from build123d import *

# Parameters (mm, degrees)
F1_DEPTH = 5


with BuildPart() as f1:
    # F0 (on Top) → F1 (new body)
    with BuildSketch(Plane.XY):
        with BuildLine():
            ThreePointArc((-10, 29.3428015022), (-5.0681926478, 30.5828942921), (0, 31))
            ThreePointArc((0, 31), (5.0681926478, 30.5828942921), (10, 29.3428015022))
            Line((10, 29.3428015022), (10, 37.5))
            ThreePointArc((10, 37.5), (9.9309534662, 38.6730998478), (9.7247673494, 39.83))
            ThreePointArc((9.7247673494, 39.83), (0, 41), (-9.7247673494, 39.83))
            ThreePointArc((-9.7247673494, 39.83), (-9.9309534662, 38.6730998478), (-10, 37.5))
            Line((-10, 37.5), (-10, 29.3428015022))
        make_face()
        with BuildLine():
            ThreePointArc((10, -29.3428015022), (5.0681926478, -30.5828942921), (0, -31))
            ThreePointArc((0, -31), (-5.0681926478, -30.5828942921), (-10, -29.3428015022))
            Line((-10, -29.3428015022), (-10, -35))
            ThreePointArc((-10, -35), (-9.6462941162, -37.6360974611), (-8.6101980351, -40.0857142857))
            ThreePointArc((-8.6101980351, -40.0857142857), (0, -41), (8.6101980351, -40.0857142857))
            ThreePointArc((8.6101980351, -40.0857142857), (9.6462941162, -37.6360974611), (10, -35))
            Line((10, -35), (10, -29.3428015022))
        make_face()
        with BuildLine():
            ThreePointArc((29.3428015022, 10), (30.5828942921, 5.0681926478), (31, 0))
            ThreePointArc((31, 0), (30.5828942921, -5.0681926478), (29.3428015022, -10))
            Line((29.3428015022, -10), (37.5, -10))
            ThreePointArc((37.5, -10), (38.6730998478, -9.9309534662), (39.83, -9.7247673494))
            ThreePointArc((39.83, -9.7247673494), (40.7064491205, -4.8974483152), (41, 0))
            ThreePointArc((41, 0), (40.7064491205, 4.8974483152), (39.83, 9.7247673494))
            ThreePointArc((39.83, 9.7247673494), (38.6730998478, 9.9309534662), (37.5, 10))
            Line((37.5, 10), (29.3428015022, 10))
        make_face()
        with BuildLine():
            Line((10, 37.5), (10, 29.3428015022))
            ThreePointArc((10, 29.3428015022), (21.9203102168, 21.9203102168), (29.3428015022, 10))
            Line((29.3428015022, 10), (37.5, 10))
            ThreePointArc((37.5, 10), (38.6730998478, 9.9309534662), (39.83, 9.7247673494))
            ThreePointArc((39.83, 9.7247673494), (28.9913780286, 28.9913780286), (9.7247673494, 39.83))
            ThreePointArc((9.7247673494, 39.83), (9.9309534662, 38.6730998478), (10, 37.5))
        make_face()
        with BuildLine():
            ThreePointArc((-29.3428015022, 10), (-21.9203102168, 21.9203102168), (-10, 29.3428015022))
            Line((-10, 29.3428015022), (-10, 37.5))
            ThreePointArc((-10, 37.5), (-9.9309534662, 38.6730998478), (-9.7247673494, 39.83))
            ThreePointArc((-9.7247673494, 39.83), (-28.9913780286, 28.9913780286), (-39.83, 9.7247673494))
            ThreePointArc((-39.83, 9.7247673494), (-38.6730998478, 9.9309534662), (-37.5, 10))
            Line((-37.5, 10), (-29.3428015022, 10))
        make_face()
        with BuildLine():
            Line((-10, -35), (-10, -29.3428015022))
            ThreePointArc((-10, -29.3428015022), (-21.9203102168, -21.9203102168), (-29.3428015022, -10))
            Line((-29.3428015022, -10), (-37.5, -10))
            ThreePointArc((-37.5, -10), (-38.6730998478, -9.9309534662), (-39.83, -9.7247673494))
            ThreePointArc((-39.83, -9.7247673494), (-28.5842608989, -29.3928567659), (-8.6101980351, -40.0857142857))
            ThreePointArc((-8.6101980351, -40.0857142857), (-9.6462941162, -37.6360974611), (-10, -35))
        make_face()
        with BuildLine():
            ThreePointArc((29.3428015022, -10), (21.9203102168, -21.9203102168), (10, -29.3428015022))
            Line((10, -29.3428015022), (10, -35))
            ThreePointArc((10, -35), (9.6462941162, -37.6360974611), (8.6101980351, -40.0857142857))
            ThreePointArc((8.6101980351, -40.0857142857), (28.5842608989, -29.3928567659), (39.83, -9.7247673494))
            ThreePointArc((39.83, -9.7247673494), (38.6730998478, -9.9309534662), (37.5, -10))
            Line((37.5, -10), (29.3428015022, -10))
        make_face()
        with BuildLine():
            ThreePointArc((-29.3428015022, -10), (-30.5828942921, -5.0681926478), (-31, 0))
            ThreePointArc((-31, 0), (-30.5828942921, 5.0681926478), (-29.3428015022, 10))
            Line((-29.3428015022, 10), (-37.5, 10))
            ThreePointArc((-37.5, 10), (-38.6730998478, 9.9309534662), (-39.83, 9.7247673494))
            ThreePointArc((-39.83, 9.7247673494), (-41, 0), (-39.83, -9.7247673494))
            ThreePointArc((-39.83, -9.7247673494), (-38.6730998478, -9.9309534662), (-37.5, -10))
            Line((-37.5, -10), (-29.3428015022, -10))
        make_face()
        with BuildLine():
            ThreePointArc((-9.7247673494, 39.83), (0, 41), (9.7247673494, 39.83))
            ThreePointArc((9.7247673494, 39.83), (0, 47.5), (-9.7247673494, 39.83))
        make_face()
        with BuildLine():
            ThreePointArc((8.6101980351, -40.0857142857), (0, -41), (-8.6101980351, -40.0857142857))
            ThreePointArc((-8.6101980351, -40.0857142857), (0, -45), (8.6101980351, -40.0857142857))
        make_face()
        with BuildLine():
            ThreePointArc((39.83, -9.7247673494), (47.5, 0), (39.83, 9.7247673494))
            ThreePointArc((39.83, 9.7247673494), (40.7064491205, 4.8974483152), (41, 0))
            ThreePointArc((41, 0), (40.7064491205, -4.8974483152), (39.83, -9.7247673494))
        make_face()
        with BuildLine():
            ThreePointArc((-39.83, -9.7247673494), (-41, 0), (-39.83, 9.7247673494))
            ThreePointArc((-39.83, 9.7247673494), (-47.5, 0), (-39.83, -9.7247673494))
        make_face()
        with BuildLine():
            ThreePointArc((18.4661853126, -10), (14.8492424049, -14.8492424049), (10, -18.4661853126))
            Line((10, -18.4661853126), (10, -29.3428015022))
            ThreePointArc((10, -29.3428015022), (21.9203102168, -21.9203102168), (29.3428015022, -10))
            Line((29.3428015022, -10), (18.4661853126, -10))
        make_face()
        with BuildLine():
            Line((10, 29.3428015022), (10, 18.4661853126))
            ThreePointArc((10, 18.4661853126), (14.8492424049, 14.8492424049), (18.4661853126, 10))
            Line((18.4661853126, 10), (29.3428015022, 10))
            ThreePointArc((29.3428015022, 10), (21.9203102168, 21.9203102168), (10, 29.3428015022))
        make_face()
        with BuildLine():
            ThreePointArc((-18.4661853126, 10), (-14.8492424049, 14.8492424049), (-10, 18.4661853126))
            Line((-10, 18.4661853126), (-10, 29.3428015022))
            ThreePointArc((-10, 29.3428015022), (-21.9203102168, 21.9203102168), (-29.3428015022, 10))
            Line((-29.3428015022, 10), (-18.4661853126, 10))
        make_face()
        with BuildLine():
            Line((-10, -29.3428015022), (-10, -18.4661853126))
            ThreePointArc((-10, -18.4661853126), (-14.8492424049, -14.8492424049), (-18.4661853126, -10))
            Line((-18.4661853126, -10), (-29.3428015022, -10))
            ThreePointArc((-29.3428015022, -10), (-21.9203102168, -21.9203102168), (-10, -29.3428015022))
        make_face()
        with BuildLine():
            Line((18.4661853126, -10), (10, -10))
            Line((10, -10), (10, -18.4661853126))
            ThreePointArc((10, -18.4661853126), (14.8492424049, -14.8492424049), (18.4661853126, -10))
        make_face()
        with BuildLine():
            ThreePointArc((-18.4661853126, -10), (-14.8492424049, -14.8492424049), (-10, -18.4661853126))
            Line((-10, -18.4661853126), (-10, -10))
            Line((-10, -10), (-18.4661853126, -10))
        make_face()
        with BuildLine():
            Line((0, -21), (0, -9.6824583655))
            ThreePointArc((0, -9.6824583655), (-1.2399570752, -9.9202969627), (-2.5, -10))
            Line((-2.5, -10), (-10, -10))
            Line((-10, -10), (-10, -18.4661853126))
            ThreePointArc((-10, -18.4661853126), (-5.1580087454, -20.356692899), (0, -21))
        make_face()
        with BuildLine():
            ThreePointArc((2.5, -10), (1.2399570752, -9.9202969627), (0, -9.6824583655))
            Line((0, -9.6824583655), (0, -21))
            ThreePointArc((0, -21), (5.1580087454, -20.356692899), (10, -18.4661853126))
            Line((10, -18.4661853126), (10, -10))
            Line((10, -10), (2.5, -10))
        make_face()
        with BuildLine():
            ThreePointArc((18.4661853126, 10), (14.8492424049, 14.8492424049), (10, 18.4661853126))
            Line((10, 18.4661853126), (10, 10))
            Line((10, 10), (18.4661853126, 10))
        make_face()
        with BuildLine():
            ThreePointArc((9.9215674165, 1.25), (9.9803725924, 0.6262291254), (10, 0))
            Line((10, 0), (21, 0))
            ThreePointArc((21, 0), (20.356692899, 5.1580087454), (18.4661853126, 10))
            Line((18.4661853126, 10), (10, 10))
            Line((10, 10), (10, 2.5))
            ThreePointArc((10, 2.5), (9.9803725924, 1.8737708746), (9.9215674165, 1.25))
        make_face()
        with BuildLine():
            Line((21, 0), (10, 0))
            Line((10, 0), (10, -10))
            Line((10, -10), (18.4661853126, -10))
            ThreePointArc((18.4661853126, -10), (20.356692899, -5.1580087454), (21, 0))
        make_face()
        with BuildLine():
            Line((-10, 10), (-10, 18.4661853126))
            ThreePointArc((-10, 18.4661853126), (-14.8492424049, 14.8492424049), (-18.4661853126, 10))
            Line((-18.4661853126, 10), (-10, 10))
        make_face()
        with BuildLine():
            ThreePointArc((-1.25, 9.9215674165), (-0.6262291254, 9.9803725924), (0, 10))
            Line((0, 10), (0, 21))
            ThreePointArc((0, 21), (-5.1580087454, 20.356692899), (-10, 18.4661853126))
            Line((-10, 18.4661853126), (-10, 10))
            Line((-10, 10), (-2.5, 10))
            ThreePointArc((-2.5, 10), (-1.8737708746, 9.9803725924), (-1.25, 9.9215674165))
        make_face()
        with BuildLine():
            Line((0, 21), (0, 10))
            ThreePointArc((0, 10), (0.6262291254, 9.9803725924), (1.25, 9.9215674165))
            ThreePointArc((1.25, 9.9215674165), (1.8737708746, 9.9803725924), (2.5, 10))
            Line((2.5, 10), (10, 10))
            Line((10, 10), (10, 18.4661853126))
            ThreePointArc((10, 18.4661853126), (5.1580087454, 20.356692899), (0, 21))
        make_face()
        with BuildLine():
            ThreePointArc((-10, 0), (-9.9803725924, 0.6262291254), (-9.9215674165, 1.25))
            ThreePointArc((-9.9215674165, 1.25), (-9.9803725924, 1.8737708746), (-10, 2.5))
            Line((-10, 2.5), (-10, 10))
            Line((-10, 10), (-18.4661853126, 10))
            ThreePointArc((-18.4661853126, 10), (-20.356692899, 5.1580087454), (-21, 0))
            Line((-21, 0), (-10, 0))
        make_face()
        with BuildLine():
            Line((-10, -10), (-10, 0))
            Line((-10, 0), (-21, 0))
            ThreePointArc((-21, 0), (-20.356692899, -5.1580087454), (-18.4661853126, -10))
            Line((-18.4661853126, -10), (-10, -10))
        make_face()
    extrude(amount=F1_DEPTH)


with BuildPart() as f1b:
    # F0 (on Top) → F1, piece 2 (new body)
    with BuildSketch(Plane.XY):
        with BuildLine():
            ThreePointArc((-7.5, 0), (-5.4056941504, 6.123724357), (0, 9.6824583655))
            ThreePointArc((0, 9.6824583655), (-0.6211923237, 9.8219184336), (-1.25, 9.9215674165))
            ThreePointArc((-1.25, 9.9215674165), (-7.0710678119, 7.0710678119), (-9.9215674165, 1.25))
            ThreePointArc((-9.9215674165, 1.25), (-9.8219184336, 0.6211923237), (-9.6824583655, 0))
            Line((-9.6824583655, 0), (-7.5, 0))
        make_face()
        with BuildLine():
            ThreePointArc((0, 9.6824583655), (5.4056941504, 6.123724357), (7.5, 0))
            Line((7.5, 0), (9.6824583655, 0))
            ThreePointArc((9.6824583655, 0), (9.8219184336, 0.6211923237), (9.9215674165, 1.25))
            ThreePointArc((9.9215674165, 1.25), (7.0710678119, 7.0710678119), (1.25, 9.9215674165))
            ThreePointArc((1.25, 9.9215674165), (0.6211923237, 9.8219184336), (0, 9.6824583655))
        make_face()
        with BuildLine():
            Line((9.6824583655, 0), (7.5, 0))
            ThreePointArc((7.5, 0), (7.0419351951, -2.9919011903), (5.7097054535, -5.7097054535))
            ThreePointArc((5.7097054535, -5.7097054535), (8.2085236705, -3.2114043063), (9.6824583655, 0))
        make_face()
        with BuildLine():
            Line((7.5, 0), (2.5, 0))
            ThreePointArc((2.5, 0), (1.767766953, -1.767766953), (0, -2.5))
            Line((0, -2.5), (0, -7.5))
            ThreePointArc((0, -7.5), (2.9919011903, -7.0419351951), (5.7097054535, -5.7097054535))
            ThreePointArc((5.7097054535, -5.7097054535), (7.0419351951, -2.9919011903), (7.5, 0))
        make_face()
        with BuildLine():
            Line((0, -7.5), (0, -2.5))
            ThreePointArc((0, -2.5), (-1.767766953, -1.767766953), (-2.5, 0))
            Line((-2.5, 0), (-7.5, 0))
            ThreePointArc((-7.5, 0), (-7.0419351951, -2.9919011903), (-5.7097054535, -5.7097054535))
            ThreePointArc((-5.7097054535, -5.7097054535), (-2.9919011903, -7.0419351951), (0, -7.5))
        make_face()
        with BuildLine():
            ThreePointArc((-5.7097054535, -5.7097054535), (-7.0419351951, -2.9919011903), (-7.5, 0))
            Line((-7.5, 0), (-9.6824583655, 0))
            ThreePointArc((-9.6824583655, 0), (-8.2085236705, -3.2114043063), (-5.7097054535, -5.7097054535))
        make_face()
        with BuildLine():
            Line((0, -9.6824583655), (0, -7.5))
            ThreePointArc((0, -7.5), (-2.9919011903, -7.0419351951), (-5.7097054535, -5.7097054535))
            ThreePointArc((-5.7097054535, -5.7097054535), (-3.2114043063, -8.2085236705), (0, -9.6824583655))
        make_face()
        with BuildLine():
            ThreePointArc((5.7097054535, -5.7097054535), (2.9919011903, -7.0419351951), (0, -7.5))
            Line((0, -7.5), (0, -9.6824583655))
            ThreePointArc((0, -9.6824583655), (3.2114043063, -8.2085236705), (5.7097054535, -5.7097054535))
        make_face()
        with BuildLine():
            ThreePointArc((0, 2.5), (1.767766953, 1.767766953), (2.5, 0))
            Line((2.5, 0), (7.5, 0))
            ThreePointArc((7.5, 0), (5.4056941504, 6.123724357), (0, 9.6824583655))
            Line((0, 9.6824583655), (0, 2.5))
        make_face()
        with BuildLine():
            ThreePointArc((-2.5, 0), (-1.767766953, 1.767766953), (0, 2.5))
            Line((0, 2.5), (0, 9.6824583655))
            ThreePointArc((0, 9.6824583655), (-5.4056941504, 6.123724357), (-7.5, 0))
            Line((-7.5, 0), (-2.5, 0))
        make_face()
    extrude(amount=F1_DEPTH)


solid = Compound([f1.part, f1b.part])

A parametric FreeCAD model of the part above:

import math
import FreeCAD as App
import Part
import Sketcher

doc = App.newDocument("Part")
body = doc.addObject("PartDesign::Body", "Body")

sketch1 = body.newObject("Sketcher::SketchObject", "Sketch")
sketch1.AttachmentSupport = (doc.getObject("XY_Plane"), [""])
sketch1.MapMode = "FlatFace"
sketch1.addGeometry(Part.ArcOfCircle(Part.Circle(App.Vector(0, 0, 0), App.Vector(0, 0, 1), 41), math.radians(-166), math.radians(-102)), False)
sketch1.addGeometry(Part.ArcOfCircle(Part.Circle(App.Vector(0, -35, 0), App.Vector(0, 0, 1), 10), math.radians(-149), math.radians(-31)), False)
sketch1.addGeometry(Part.ArcOfCircle(Part.Circle(App.Vector(0, 0, 0), App.Vector(0, 0, 1), 41), math.radians(-78), math.radians(-14)), False)
sketch1.addGeometry(Part.ArcOfCircle(Part.Circle(App.Vector(37.5, 0, 0), App.Vector(0, 0, 1), 10), math.radians(-77), math.radians(77)), False)
sketch1.addGeometry(Part.ArcOfCircle(Part.Circle(App.Vector(0, 0, 0), App.Vector(0, 0, 1), 41), math.radians(14), math.radians(76)), False)
sketch1.addGeometry(Part.ArcOfCircle(Part.Circle(App.Vector(0, 37.5, 0), App.Vector(0, 0, 1), 10), math.radians(13), math.radians(167)), False)
sketch1.addGeometry(Part.ArcOfCircle(Part.Circle(App.Vector(0, 0, 0), App.Vector(0, 0, 1), 41), math.radians(104), math.radians(166)), False)
sketch1.addGeometry(Part.ArcOfCircle(Part.Circle(App.Vector(-37.5, 0, 0), App.Vector(0, 0, 1), 10), math.radians(103), math.radians(257)), False)
sketch1.addGeometry(Part.ArcOfCircle(Part.Circle(App.Vector(0, 0, 0), App.Vector(0, 0, 1), 31), math.radians(90), math.radians(108.82)), False)
sketch1.addGeometry(Part.ArcOfCircle(Part.Circle(App.Vector(0, 0, 0), App.Vector(0, 0, 1), 31), math.radians(71.18), math.radians(90)), False)
sketch1.addGeometry(Part.LineSegment(App.Vector(10, 29.3, 0), App.Vector(10, 18.5, 0)), False)
sketch1.addGeometry(Part.ArcOfCircle(Part.Circle(App.Vector(0, 0, 0), App.Vector(0, 0, 1), 21), math.radians(62), math.radians(90)), False)
sketch1.addGeometry(Part.ArcOfCircle(Part.Circle(App.Vector(0, 0, 0), App.Vector(0, 0, 1), 21), math.radians(90), math.radians(118)), False)
sketch1.addGeometry(Part.LineSegment(App.Vector(-10, 18.5, 0), App.Vector(-10, 29.3, 0)), False)
sketch1.addGeometry(Part.LineSegment(App.Vector(10, 10, 0), App.Vector(10, 2.5, 0)), False)
sketch1.addGeometry(Part.ArcOfCircle(Part.Circle(App.Vector(0, 2.5, 0), App.Vector(0, 0, 1), 10), math.radians(-7.18), math.radians(0)), False)
sketch1.addGeometry(Part.ArcOfCircle(Part.Circle(App.Vector(0, 0, 0), App.Vector(0, 0, 1), 10), math.radians(0), math.radians(7.18)), False)
sketch1.addGeometry(Part.LineSegment(App.Vector(10, 0, 0), App.Vector(10, -10, 0)), False)
sketch1.addGeometry(Part.LineSegment(App.Vector(10, -10, 0), App.Vector(2.5, -10, 0)), False)
sketch1.addGeometry(Part.ArcOfCircle(Part.Circle(App.Vector(2.5, 0, 0), App.Vector(0, 0, 1), 10), math.radians(-104.48), math.radians(-90)), False)
sketch1.addGeometry(Part.ArcOfCircle(Part.Circle(App.Vector(-2.5, 0, 0), App.Vector(0, 0, 1), 10), math.radians(-90), math.radians(-75.52)), False)
sketch1.addGeometry(Part.LineSegment(App.Vector(-2.5, -10, 0), App.Vector(-10, -10, 0)), False)
sketch1.addGeometry(Part.LineSegment(App.Vector(-10, -10, 0), App.Vector(-10, 0, 0)), False)
sketch1.addGeometry(Part.ArcOfCircle(Part.Circle(App.Vector(0, 0, 0), App.Vector(0, 0, 1), 10), math.radians(172.82), math.radians(180)), False)
sketch1.addGeometry(Part.ArcOfCircle(Part.Circle(App.Vector(0, 2.5, 0), App.Vector(0, 0, 1), 10), math.radians(180), math.radians(187.18)), False)
sketch1.addGeometry(Part.LineSegment(App.Vector(-10, 2.5, 0), App.Vector(-10, 10, 0)), False)
sketch1.addGeometry(Part.LineSegment(App.Vector(-10, 10, 0), App.Vector(-2.5, 10, 0)), False)
sketch1.addGeometry(Part.ArcOfCircle(Part.Circle(App.Vector(-2.5, 0, 0), App.Vector(0, 0, 1), 10), math.radians(82.82), math.radians(90)), False)
sketch1.addGeometry(Part.ArcOfCircle(Part.Circle(App.Vector(0, 0, 0), App.Vector(0, 0, 1), 10), math.radians(90), math.radians(97.18)), False)
sketch1.addGeometry(Part.ArcOfCircle(Part.Circle(App.Vector(0, 0, 0), App.Vector(0, 0, 1), 10), math.radians(82.82), math.radians(90)), False)
sketch1.addGeometry(Part.ArcOfCircle(Part.Circle(App.Vector(2.5, 0, 0), App.Vector(0, 0, 1), 10), math.radians(90), math.radians(97.18)), False)
sketch1.addGeometry(Part.LineSegment(App.Vector(2.5, 10, 0), App.Vector(10, 10, 0)), False)
sketch1.addGeometry(Part.LineSegment(App.Vector(-18.5, -10, 0), App.Vector(-29.3, -10, 0)), False)
sketch1.addGeometry(Part.ArcOfCircle(Part.Circle(App.Vector(0, 0, 0), App.Vector(0, 0, 1), 31), math.radians(180), math.radians(198.82)), False)
sketch1.addGeometry(Part.ArcOfCircle(Part.Circle(App.Vector(0, 0, 0), App.Vector(0, 0, 1), 31), math.radians(161.18), math.radians(180)), False)
sketch1.addGeometry(Part.LineSegment(App.Vector(-29.3, 10, 0), App.Vector(-18.5, 10, 0)), False)
sketch1.addGeometry(Part.ArcOfCircle(Part.Circle(App.Vector(0, 0, 0), App.Vector(0, 0, 1), 21), math.radians(152), math.radians(180)), False)
sketch1.addGeometry(Part.ArcOfCircle(Part.Circle(App.Vector(0, 0, 0), App.Vector(0, 0, 1), 21), math.radians(180), math.radians(208)), False)
sketch1.addGeometry(Part.ArcOfCircle(Part.Circle(App.Vector(0, 0, 0), App.Vector(0, 0, 1), 21), math.radians(0), math.radians(28)), False)
sketch1.addGeometry(Part.LineSegment(App.Vector(18.5, 10, 0), App.Vector(29.3, 10, 0)), False)
sketch1.addGeometry(Part.ArcOfCircle(Part.Circle(App.Vector(0, 0, 0), App.Vector(0, 0, 1), 31), math.radians(0), math.radians(18.82)), False)
sketch1.addGeometry(Part.ArcOfCircle(Part.Circle(App.Vector(0, 0, 0), App.Vector(0, 0, 1), 31), math.radians(-18.82), math.radians(0)), False)
sketch1.addGeometry(Part.LineSegment(App.Vector(29.3, -10, 0), App.Vector(18.5, -10, 0)), False)
sketch1.addGeometry(Part.ArcOfCircle(Part.Circle(App.Vector(0, 0, 0), App.Vector(0, 0, 1), 21), math.radians(-28), math.radians(0)), False)
sketch1.addGeometry(Part.LineSegment(App.Vector(10, -18.5, 0), App.Vector(10, -29.3, 0)), False)
sketch1.addGeometry(Part.ArcOfCircle(Part.Circle(App.Vector(0, 0, 0), App.Vector(0, 0, 1), 31), math.radians(-90), math.radians(-71.18)), False)
sketch1.addGeometry(Part.ArcOfCircle(Part.Circle(App.Vector(0, 0, 0), App.Vector(0, 0, 1), 31), math.radians(-108.82), math.radians(-90)), False)
sketch1.addGeometry(Part.LineSegment(App.Vector(-10, -29.3, 0), App.Vector(-10, -18.5, 0)), False)
sketch1.addGeometry(Part.ArcOfCircle(Part.Circle(App.Vector(0, 0, 0), App.Vector(0, 0, 1), 21), math.radians(-118), math.radians(-90)), False)
sketch1.addGeometry(Part.ArcOfCircle(Part.Circle(App.Vector(0, 0, 0), App.Vector(0, 0, 1), 21), math.radians(-90), math.radians(-62)), False)
sketch1.addConstraint(Sketcher.Constraint("Coincident", 0, 2, 1, 1))
sketch1.addConstraint(Sketcher.Constraint("Coincident", 1, 2, 2, 1))
sketch1.addConstraint(Sketcher.Constraint("Coincident", 2, 2, 3, 1))
sketch1.addConstraint(Sketcher.Constraint("Coincident", 3, 2, 4, 1))
sketch1.addConstraint(Sketcher.Constraint("Coincident", 4, 2, 5, 1))
sketch1.addConstraint(Sketcher.Constraint("Coincident", 5, 2, 6, 1))
sketch1.addConstraint(Sketcher.Constraint("Coincident", 6, 2, 7, 1))
sketch1.addConstraint(Sketcher.Constraint("Coincident", 7, 2, 0, 1))
sketch1.addConstraint(Sketcher.Constraint("Tangent", 8, 1, 9, 2))
sketch1.addConstraint(Sketcher.Constraint("Coincident", 9, 1, 10, 1))
sketch1.addConstraint(Sketcher.Constraint("Coincident", 10, 2, 11, 1))
sketch1.addConstraint(Sketcher.Constraint("Tangent", 11, 2, 12, 1))
sketch1.addConstraint(Sketcher.Constraint("Coincident", 12, 2, 13, 1))
sketch1.addConstraint(Sketcher.Constraint("Coincident", 13, 2, 8, 2))
sketch1.addConstraint(Sketcher.Constraint("Tangent", 14, 2, 15, 2))
sketch1.addConstraint(Sketcher.Constraint("Coincident", 15, 1, 16, 2))
sketch1.addConstraint(Sketcher.Constraint("Tangent", 16, 1, 17, 1))
sketch1.addConstraint(Sketcher.Constraint("Coincident", 17, 2, 18, 1))
sketch1.addConstraint(Sketcher.Constraint("Tangent", 18, 2, 19, 2))
sketch1.addConstraint(Sketcher.Constraint("Coincident", 19, 1, 20, 2))
sketch1.addConstraint(Sketcher.Constraint("Tangent", 20, 1, 21, 1))
sketch1.addConstraint(Sketcher.Constraint("Coincident", 21, 2, 22, 1))
sketch1.addConstraint(Sketcher.Constraint("Tangent", 22, 2, 23, 2))
sketch1.addConstraint(Sketcher.Constraint("Coincident", 23, 1, 24, 2))
sketch1.addConstraint(Sketcher.Constraint("Tangent", 24, 1, 25, 1))
sketch1.addConstraint(Sketcher.Constraint("Coincident", 25, 2, 26, 1))
sketch1.addConstraint(Sketcher.Constraint("Tangent", 26, 2, 27, 2))
sketch1.addConstraint(Sketcher.Constraint("Coincident", 27, 1, 28, 2))
sketch1.addConstraint(Sketcher.Constraint("Tangent", 28, 1, 29, 2))
sketch1.addConstraint(Sketcher.Constraint("Coincident", 29, 1, 30, 2))
sketch1.addConstraint(Sketcher.Constraint("Tangent", 30, 1, 31, 1))
sketch1.addConstraint(Sketcher.Constraint("Coincident", 31, 2, 14, 1))
sketch1.addConstraint(Sketcher.Constraint("Coincident", 32, 2, 33, 2))
sketch1.addConstraint(Sketcher.Constraint("Tangent", 33, 1, 34, 2))
sketch1.addConstraint(Sketcher.Constraint("Coincident", 34, 1, 35, 1))
sketch1.addConstraint(Sketcher.Constraint("Coincident", 35, 2, 36, 1))
sketch1.addConstraint(Sketcher.Constraint("Tangent", 36, 2, 37, 1))
sketch1.addConstraint(Sketcher.Constraint("Coincident", 37, 2, 32, 1))
sketch1.addConstraint(Sketcher.Constraint("Coincident", 38, 2, 39, 1))
sketch1.addConstraint(Sketcher.Constraint("Coincident", 39, 2, 40, 2))
sketch1.addConstraint(Sketcher.Constraint("Tangent", 40, 1, 41, 2))
sketch1.addConstraint(Sketcher.Constraint("Coincident", 41, 1, 42, 1))
sketch1.addConstraint(Sketcher.Constraint("Coincident", 42, 2, 43, 1))
sketch1.addConstraint(Sketcher.Constraint("Tangent", 43, 2, 38, 1))
sketch1.addConstraint(Sketcher.Constraint("Coincident", 44, 2, 45, 2))
sketch1.addConstraint(Sketcher.Constraint("Tangent", 45, 1, 46, 2))
sketch1.addConstraint(Sketcher.Constraint("Coincident", 46, 1, 47, 1))
sketch1.addConstraint(Sketcher.Constraint("Coincident", 47, 2, 48, 1))
sketch1.addConstraint(Sketcher.Constraint("Tangent", 48, 2, 49, 1))
sketch1.addConstraint(Sketcher.Constraint("Coincident", 49, 2, 44, 1))
sketch1.addConstraint(Sketcher.Constraint("Vertical", 10))
sketch1.addConstraint(Sketcher.Constraint("Vertical", 13))
sketch1.addConstraint(Sketcher.Constraint("Vertical", 14))
sketch1.addConstraint(Sketcher.Constraint("Vertical", 17))
sketch1.addConstraint(Sketcher.Constraint("Horizontal", 18))
sketch1.addConstraint(Sketcher.Constraint("Horizontal", 21))
sketch1.addConstraint(Sketcher.Constraint("Vertical", 22))
sketch1.addConstraint(Sketcher.Constraint("Vertical", 25))
sketch1.addConstraint(Sketcher.Constraint("Horizontal", 26))
sketch1.addConstraint(Sketcher.Constraint("Horizontal", 31))
sketch1.addConstraint(Sketcher.Constraint("Horizontal", 32))
sketch1.addConstraint(Sketcher.Constraint("Horizontal", 35))
sketch1.addConstraint(Sketcher.Constraint("Horizontal", 39))
sketch1.addConstraint(Sketcher.Constraint("Horizontal", 42))
sketch1.addConstraint(Sketcher.Constraint("Vertical", 44))
sketch1.addConstraint(Sketcher.Constraint("Vertical", 47))
sketch1.addConstraint(Sketcher.Constraint("Coincident", 0, 3, -1, 1))
sketch1.addConstraint(Sketcher.Constraint("Coincident", 2, 3, -1, 1))
sketch1.addConstraint(Sketcher.Constraint("Coincident", 4, 3, -1, 1))
sketch1.addConstraint(Sketcher.Constraint("Coincident", 6, 3, -1, 1))
sketch1.addConstraint(Sketcher.Constraint("Coincident", 8, 3, -1, 1))
sketch1.addConstraint(Sketcher.Constraint("Coincident", 11, 3, -1, 1))
sketch1.addConstraint(Sketcher.Constraint("Coincident", 16, 3, -1, 1))
sketch1.addConstraint(Sketcher.Constraint("Coincident", 23, 3, -1, 1))
sketch1.addConstraint(Sketcher.Constraint("Coincident", 28, 3, -1, 1))
sketch1.addConstraint(Sketcher.Constraint("Coincident", 33, 3, -1, 1))
sketch1.addConstraint(Sketcher.Constraint("Coincident", 36, 3, -1, 1))
sketch1.addConstraint(Sketcher.Constraint("Coincident", 38, 3, -1, 1))
sketch1.addConstraint(Sketcher.Constraint("Coincident", 40, 3, -1, 1))
sketch1.addConstraint(Sketcher.Constraint("Coincident", 45, 3, -1, 1))
sketch1.addConstraint(Sketcher.Constraint("Coincident", 48, 3, -1, 1))
sketch1.addConstraint(Sketcher.Constraint("Coincident", 24, 3, 15, 3))
sketch1.addConstraint(Sketcher.Constraint("Coincident", 27, 3, 20, 3))
sketch1.addConstraint(Sketcher.Constraint("Coincident", 30, 3, 19, 3))
sketch1.addConstraint(Sketcher.Constraint("Equal", 0, 2))
sketch1.addConstraint(Sketcher.Constraint("Equal", 1, 3))
sketch1.addConstraint(Sketcher.Constraint("Equal", 2, 4))
sketch1.addConstraint(Sketcher.Constraint("Equal", 3, 5))
sketch1.addConstraint(Sketcher.Constraint("Equal", 4, 6))
sketch1.addConstraint(Sketcher.Constraint("Equal", 5, 7))
sketch1.addConstraint(Sketcher.Constraint("Equal", 8, 9))
sketch1.addConstraint(Sketcher.Constraint("Equal", 11, 12))
sketch1.addConstraint(Sketcher.Constraint("Equal", 7, 15))
sketch1.addConstraint(Sketcher.Constraint("Equal", 15, 16))
sketch1.addConstraint(Sketcher.Constraint("Equal", 16, 19))
sketch1.addConstraint(Sketcher.Constraint("Equal", 19, 20))
sketch1.addConstraint(Sketcher.Constraint("Equal", 20, 23))
sketch1.addConstraint(Sketcher.Constraint("Equal", 23, 24))
sketch1.addConstraint(Sketcher.Constraint("Equal", 24, 27))
sketch1.addConstraint(Sketcher.Constraint("Equal", 27, 28))
sketch1.addConstraint(Sketcher.Constraint("Equal", 28, 29))
sketch1.addConstraint(Sketcher.Constraint("Equal", 29, 30))
sketch1.addConstraint(Sketcher.Constraint("Equal", 9, 33))
sketch1.addConstraint(Sketcher.Constraint("Equal", 33, 34))
sketch1.addConstraint(Sketcher.Constraint("Equal", 12, 36))
sketch1.addConstraint(Sketcher.Constraint("Equal", 36, 37))
sketch1.addConstraint(Sketcher.Constraint("Equal", 37, 38))
sketch1.addConstraint(Sketcher.Constraint("Equal", 34, 40))
sketch1.addConstraint(Sketcher.Constraint("Equal", 40, 41))
sketch1.addConstraint(Sketcher.Constraint("Equal", 38, 43))
sketch1.addConstraint(Sketcher.Constraint("Equal", 41, 45))
sketch1.addConstraint(Sketcher.Constraint("Equal", 45, 46))
sketch1.addConstraint(Sketcher.Constraint("Equal", 43, 48))
sketch1.addConstraint(Sketcher.Constraint("Equal", 48, 49))
sketch1.addConstraint(Sketcher.Constraint("Symmetric", 3, 3, 7, 3, -1, 1))
sketch1.addConstraint(Sketcher.Constraint("Symmetric", 19, 3, 20, 3, -1, 1))
sketch1.addConstraint(Sketcher.Constraint("Symmetric", 25, 2, 31, 2, -2))
sketch1.addConstraint(Sketcher.Constraint("PointOnObject", 1, 3, -2))
sketch1.addConstraint(Sketcher.Constraint("PointOnObject", 3, 3, -1))
sketch1.addConstraint(Sketcher.Constraint("PointOnObject", 5, 3, -2))
sketch1.addConstraint(Sketcher.Constraint("PointOnObject", 8, 1, -2))
sketch1.addConstraint(Sketcher.Constraint("PointOnObject", 11, 2, -2))
sketch1.addConstraint(Sketcher.Constraint("PointOnObject", 28, 1, -2))
sketch1.addConstraint(Sketcher.Constraint("PointOnObject", 33, 1, -1))
sketch1.addConstraint(Sketcher.Constraint("PointOnObject", 36, 2, -1))
sketch1.addConstraint(Sketcher.Constraint("PointOnObject", 40, 1, -1))
sketch1.addConstraint(Sketcher.Constraint("PointOnObject", 43, 2, -1))
sketch1.addConstraint(Sketcher.Constraint("PointOnObject", 45, 1, -2))
sketch1.addConstraint(Sketcher.Constraint("PointOnObject", 48, 2, -2))
sketch1.addConstraint(Sketcher.Constraint("Horizontal", 10, 2, 12, 2))
sketch1.addConstraint(Sketcher.Constraint("Horizontal", 21, 2, 32, 2))
sketch1.addConstraint(Sketcher.Constraint("Horizontal", 31, 2, 34, 1))
sketch1.addConstraint(Sketcher.Constraint("Horizontal", 35, 2, 38, 2))
sketch1.addConstraint(Sketcher.Constraint("Horizontal", 37, 2, 41, 1))
sketch1.addConstraint(Sketcher.Constraint("Horizontal", 44, 2, 46, 1))
sketch1.addConstraint(Sketcher.Constraint("Vertical", 10, 2, 14, 2))
sketch1.addConstraint(Sketcher.Constraint("Vertical", 31, 2, 44, 2))
sketch1.addConstraint(Sketcher.Constraint("Equal", 31, 14))
sketch1.addConstraint(Sketcher.Constraint("Radius", 0, 41.0))
sketch1.addConstraint(Sketcher.Constraint("Radius", 1, 10.0))
sketch1.addConstraint(Sketcher.Constraint("Radius", 8, 31.0))
sketch1.addConstraint(Sketcher.Constraint("Radius", 11, 21.0))
sketch1.addConstraint(Sketcher.Constraint("DistanceX", 18, 2, 18, 1, 7.5))
sketch1.addConstraint(Sketcher.Constraint("DistanceY", 1, 3, -1, 1, 35.0))
sketch1.addConstraint(Sketcher.Constraint("DistanceX", -1, 1, 3, 3, 37.5))
sketch1.addConstraint(Sketcher.Constraint("DistanceY", -1, 1, 5, 3, 37.5))
pad1 = body.newObject("PartDesign::Pad", "Pad")
pad1.Profile = sketch1
pad1.Length = 5
body2 = doc.addObject("PartDesign::Body", "Body001")

sketch2 = body2.newObject("Sketcher::SketchObject", "Sketch001")
sketch2.AttachmentSupport = (doc.getObject("XY_Plane001"), [""])
sketch2.MapMode = "FlatFace"
sketch2.addGeometry(Part.ArcOfCircle(Part.Circle(App.Vector(2.5, 0, 0), App.Vector(0, 0, 1), 10), math.radians(97.18), math.radians(104.48)), False)
sketch2.addGeometry(Part.ArcOfCircle(Part.Circle(App.Vector(-2.5, 0, 0), App.Vector(0, 0, 1), 10), math.radians(75.52), math.radians(82.82)), False)
sketch2.addGeometry(Part.ArcOfCircle(Part.Circle(App.Vector(0, 0, 0), App.Vector(0, 0, 1), 10), math.radians(97), math.radians(173)), False)
sketch2.addGeometry(Part.ArcOfCircle(Part.Circle(App.Vector(0, 2.5, 0), App.Vector(0, 0, 1), 10), math.radians(-172.82), math.radians(-165.52)), False)
sketch2.addGeometry(Part.ArcOfCircle(Part.Circle(App.Vector(0, 2.5, 0), App.Vector(0, 0, 1), 10), math.radians(-166), math.radians(-125)), False)
sketch2.addGeometry(Part.ArcOfCircle(Part.Circle(App.Vector(2.5, 0, 0), App.Vector(0, 0, 1), 10), math.radians(-145), math.radians(-104)), False)
sketch2.addGeometry(Part.ArcOfCircle(Part.Circle(App.Vector(-2.5, 0, 0), App.Vector(0, 0, 1), 10), math.radians(-76), math.radians(-35)), False)
sketch2.addGeometry(Part.ArcOfCircle(Part.Circle(App.Vector(0, 2.5, 0), App.Vector(0, 0, 1), 10), math.radians(-55), math.radians(-14)), False)
sketch2.addGeometry(Part.ArcOfCircle(Part.Circle(App.Vector(0, 2.5, 0), App.Vector(0, 0, 1), 10), math.radians(-14.48), math.radians(-7.18)), False)
sketch2.addGeometry(Part.ArcOfCircle(Part.Circle(App.Vector(0, 0, 0), App.Vector(0, 0, 1), 10), math.radians(7), math.radians(83)), False)
sketch2.addGeometry(Part.ArcOfCircle(Part.Circle(App.Vector(0, 0, 0), App.Vector(0, 0, 1), 2.5), math.radians(180), math.radians(270)), False)
sketch2.addGeometry(Part.ArcOfCircle(Part.Circle(App.Vector(0, 0, 0), App.Vector(0, 0, 1), 2.5), math.radians(90), math.radians(180)), False)
sketch2.addGeometry(Part.ArcOfCircle(Part.Circle(App.Vector(0, 0, 0), App.Vector(0, 0, 1), 2.5), math.radians(0), math.radians(90)), False)
sketch2.addGeometry(Part.ArcOfCircle(Part.Circle(App.Vector(0, 0, 0), App.Vector(0, 0, 1), 2.5), math.radians(-90), math.radians(0)), False)
sketch2.addConstraint(Sketcher.Constraint("Coincident", 0, 2, 1, 1))
sketch2.addConstraint(Sketcher.Constraint("Coincident", 1, 2, 2, 1))
sketch2.addConstraint(Sketcher.Constraint("Coincident", 2, 2, 3, 1))
sketch2.addConstraint(Sketcher.Constraint("Tangent", 3, 2, 4, 1))
sketch2.addConstraint(Sketcher.Constraint("Coincident", 4, 2, 5, 1))
sketch2.addConstraint(Sketcher.Constraint("Coincident", 5, 2, 6, 1))
sketch2.addConstraint(Sketcher.Constraint("Coincident", 6, 2, 7, 1))
sketch2.addConstraint(Sketcher.Constraint("Tangent", 7, 2, 8, 1))
sketch2.addConstraint(Sketcher.Constraint("Coincident", 8, 2, 9, 1))
sketch2.addConstraint(Sketcher.Constraint("Coincident", 9, 2, 0, 1))
sketch2.addConstraint(Sketcher.Constraint("Tangent", 10, 1, 11, 2))
sketch2.addConstraint(Sketcher.Constraint("Tangent", 11, 1, 12, 2))
sketch2.addConstraint(Sketcher.Constraint("Tangent", 12, 1, 13, 2))
sketch2.addConstraint(Sketcher.Constraint("Tangent", 13, 1, 10, 2))
sketch2.addConstraint(Sketcher.Constraint("Coincident", 2, 3, -1, 1))
sketch2.addConstraint(Sketcher.Constraint("Coincident", 9, 3, -1, 1))
sketch2.addConstraint(Sketcher.Constraint("Coincident", 10, 3, -1, 1))
sketch2.addConstraint(Sketcher.Constraint("Coincident", 5, 3, 0, 3))
sketch2.addConstraint(Sketcher.Constraint("Coincident", 6, 3, 1, 3))
sketch2.addConstraint(Sketcher.Constraint("Coincident", 7, 3, 3, 3))
sketch2.addConstraint(Sketcher.Constraint("Coincident", 10, 1, 1, 3))
sketch2.addConstraint(Sketcher.Constraint("Coincident", 11, 1, 3, 3))
sketch2.addConstraint(Sketcher.Constraint("Coincident", 12, 1, 0, 3))
sketch2.addConstraint(Sketcher.Constraint("Equal", 0, 1))
sketch2.addConstraint(Sketcher.Constraint("Equal", 1, 2))
sketch2.addConstraint(Sketcher.Constraint("Equal", 2, 3))
sketch2.addConstraint(Sketcher.Constraint("Equal", 3, 4))
sketch2.addConstraint(Sketcher.Constraint("Equal", 4, 5))
sketch2.addConstraint(Sketcher.Constraint("Equal", 5, 6))
sketch2.addConstraint(Sketcher.Constraint("Equal", 6, 7))
sketch2.addConstraint(Sketcher.Constraint("Equal", 7, 8))
sketch2.addConstraint(Sketcher.Constraint("Equal", 8, 9))
sketch2.addConstraint(Sketcher.Constraint("Equal", 10, 11))
sketch2.addConstraint(Sketcher.Constraint("Symmetric", 3, 2, 7, 2, -1, 1))
sketch2.addConstraint(Sketcher.Constraint("Symmetric", 4, 2, 6, 2, -2))
sketch2.addConstraint(Sketcher.Constraint("PointOnObject", 0, 3, -1))
sketch2.addConstraint(Sketcher.Constraint("PointOnObject", 13, 1, -2))
sketch2.addConstraint(Sketcher.Constraint("Radius", 0, 10.0))
sketch2.addConstraint(Sketcher.Constraint("Radius", 10, 2.5))
pad2 = body2.newObject("PartDesign::Pad", "Pad001")
pad2.Profile = sketch2
pad2.Length = 5

doc.recompute()
